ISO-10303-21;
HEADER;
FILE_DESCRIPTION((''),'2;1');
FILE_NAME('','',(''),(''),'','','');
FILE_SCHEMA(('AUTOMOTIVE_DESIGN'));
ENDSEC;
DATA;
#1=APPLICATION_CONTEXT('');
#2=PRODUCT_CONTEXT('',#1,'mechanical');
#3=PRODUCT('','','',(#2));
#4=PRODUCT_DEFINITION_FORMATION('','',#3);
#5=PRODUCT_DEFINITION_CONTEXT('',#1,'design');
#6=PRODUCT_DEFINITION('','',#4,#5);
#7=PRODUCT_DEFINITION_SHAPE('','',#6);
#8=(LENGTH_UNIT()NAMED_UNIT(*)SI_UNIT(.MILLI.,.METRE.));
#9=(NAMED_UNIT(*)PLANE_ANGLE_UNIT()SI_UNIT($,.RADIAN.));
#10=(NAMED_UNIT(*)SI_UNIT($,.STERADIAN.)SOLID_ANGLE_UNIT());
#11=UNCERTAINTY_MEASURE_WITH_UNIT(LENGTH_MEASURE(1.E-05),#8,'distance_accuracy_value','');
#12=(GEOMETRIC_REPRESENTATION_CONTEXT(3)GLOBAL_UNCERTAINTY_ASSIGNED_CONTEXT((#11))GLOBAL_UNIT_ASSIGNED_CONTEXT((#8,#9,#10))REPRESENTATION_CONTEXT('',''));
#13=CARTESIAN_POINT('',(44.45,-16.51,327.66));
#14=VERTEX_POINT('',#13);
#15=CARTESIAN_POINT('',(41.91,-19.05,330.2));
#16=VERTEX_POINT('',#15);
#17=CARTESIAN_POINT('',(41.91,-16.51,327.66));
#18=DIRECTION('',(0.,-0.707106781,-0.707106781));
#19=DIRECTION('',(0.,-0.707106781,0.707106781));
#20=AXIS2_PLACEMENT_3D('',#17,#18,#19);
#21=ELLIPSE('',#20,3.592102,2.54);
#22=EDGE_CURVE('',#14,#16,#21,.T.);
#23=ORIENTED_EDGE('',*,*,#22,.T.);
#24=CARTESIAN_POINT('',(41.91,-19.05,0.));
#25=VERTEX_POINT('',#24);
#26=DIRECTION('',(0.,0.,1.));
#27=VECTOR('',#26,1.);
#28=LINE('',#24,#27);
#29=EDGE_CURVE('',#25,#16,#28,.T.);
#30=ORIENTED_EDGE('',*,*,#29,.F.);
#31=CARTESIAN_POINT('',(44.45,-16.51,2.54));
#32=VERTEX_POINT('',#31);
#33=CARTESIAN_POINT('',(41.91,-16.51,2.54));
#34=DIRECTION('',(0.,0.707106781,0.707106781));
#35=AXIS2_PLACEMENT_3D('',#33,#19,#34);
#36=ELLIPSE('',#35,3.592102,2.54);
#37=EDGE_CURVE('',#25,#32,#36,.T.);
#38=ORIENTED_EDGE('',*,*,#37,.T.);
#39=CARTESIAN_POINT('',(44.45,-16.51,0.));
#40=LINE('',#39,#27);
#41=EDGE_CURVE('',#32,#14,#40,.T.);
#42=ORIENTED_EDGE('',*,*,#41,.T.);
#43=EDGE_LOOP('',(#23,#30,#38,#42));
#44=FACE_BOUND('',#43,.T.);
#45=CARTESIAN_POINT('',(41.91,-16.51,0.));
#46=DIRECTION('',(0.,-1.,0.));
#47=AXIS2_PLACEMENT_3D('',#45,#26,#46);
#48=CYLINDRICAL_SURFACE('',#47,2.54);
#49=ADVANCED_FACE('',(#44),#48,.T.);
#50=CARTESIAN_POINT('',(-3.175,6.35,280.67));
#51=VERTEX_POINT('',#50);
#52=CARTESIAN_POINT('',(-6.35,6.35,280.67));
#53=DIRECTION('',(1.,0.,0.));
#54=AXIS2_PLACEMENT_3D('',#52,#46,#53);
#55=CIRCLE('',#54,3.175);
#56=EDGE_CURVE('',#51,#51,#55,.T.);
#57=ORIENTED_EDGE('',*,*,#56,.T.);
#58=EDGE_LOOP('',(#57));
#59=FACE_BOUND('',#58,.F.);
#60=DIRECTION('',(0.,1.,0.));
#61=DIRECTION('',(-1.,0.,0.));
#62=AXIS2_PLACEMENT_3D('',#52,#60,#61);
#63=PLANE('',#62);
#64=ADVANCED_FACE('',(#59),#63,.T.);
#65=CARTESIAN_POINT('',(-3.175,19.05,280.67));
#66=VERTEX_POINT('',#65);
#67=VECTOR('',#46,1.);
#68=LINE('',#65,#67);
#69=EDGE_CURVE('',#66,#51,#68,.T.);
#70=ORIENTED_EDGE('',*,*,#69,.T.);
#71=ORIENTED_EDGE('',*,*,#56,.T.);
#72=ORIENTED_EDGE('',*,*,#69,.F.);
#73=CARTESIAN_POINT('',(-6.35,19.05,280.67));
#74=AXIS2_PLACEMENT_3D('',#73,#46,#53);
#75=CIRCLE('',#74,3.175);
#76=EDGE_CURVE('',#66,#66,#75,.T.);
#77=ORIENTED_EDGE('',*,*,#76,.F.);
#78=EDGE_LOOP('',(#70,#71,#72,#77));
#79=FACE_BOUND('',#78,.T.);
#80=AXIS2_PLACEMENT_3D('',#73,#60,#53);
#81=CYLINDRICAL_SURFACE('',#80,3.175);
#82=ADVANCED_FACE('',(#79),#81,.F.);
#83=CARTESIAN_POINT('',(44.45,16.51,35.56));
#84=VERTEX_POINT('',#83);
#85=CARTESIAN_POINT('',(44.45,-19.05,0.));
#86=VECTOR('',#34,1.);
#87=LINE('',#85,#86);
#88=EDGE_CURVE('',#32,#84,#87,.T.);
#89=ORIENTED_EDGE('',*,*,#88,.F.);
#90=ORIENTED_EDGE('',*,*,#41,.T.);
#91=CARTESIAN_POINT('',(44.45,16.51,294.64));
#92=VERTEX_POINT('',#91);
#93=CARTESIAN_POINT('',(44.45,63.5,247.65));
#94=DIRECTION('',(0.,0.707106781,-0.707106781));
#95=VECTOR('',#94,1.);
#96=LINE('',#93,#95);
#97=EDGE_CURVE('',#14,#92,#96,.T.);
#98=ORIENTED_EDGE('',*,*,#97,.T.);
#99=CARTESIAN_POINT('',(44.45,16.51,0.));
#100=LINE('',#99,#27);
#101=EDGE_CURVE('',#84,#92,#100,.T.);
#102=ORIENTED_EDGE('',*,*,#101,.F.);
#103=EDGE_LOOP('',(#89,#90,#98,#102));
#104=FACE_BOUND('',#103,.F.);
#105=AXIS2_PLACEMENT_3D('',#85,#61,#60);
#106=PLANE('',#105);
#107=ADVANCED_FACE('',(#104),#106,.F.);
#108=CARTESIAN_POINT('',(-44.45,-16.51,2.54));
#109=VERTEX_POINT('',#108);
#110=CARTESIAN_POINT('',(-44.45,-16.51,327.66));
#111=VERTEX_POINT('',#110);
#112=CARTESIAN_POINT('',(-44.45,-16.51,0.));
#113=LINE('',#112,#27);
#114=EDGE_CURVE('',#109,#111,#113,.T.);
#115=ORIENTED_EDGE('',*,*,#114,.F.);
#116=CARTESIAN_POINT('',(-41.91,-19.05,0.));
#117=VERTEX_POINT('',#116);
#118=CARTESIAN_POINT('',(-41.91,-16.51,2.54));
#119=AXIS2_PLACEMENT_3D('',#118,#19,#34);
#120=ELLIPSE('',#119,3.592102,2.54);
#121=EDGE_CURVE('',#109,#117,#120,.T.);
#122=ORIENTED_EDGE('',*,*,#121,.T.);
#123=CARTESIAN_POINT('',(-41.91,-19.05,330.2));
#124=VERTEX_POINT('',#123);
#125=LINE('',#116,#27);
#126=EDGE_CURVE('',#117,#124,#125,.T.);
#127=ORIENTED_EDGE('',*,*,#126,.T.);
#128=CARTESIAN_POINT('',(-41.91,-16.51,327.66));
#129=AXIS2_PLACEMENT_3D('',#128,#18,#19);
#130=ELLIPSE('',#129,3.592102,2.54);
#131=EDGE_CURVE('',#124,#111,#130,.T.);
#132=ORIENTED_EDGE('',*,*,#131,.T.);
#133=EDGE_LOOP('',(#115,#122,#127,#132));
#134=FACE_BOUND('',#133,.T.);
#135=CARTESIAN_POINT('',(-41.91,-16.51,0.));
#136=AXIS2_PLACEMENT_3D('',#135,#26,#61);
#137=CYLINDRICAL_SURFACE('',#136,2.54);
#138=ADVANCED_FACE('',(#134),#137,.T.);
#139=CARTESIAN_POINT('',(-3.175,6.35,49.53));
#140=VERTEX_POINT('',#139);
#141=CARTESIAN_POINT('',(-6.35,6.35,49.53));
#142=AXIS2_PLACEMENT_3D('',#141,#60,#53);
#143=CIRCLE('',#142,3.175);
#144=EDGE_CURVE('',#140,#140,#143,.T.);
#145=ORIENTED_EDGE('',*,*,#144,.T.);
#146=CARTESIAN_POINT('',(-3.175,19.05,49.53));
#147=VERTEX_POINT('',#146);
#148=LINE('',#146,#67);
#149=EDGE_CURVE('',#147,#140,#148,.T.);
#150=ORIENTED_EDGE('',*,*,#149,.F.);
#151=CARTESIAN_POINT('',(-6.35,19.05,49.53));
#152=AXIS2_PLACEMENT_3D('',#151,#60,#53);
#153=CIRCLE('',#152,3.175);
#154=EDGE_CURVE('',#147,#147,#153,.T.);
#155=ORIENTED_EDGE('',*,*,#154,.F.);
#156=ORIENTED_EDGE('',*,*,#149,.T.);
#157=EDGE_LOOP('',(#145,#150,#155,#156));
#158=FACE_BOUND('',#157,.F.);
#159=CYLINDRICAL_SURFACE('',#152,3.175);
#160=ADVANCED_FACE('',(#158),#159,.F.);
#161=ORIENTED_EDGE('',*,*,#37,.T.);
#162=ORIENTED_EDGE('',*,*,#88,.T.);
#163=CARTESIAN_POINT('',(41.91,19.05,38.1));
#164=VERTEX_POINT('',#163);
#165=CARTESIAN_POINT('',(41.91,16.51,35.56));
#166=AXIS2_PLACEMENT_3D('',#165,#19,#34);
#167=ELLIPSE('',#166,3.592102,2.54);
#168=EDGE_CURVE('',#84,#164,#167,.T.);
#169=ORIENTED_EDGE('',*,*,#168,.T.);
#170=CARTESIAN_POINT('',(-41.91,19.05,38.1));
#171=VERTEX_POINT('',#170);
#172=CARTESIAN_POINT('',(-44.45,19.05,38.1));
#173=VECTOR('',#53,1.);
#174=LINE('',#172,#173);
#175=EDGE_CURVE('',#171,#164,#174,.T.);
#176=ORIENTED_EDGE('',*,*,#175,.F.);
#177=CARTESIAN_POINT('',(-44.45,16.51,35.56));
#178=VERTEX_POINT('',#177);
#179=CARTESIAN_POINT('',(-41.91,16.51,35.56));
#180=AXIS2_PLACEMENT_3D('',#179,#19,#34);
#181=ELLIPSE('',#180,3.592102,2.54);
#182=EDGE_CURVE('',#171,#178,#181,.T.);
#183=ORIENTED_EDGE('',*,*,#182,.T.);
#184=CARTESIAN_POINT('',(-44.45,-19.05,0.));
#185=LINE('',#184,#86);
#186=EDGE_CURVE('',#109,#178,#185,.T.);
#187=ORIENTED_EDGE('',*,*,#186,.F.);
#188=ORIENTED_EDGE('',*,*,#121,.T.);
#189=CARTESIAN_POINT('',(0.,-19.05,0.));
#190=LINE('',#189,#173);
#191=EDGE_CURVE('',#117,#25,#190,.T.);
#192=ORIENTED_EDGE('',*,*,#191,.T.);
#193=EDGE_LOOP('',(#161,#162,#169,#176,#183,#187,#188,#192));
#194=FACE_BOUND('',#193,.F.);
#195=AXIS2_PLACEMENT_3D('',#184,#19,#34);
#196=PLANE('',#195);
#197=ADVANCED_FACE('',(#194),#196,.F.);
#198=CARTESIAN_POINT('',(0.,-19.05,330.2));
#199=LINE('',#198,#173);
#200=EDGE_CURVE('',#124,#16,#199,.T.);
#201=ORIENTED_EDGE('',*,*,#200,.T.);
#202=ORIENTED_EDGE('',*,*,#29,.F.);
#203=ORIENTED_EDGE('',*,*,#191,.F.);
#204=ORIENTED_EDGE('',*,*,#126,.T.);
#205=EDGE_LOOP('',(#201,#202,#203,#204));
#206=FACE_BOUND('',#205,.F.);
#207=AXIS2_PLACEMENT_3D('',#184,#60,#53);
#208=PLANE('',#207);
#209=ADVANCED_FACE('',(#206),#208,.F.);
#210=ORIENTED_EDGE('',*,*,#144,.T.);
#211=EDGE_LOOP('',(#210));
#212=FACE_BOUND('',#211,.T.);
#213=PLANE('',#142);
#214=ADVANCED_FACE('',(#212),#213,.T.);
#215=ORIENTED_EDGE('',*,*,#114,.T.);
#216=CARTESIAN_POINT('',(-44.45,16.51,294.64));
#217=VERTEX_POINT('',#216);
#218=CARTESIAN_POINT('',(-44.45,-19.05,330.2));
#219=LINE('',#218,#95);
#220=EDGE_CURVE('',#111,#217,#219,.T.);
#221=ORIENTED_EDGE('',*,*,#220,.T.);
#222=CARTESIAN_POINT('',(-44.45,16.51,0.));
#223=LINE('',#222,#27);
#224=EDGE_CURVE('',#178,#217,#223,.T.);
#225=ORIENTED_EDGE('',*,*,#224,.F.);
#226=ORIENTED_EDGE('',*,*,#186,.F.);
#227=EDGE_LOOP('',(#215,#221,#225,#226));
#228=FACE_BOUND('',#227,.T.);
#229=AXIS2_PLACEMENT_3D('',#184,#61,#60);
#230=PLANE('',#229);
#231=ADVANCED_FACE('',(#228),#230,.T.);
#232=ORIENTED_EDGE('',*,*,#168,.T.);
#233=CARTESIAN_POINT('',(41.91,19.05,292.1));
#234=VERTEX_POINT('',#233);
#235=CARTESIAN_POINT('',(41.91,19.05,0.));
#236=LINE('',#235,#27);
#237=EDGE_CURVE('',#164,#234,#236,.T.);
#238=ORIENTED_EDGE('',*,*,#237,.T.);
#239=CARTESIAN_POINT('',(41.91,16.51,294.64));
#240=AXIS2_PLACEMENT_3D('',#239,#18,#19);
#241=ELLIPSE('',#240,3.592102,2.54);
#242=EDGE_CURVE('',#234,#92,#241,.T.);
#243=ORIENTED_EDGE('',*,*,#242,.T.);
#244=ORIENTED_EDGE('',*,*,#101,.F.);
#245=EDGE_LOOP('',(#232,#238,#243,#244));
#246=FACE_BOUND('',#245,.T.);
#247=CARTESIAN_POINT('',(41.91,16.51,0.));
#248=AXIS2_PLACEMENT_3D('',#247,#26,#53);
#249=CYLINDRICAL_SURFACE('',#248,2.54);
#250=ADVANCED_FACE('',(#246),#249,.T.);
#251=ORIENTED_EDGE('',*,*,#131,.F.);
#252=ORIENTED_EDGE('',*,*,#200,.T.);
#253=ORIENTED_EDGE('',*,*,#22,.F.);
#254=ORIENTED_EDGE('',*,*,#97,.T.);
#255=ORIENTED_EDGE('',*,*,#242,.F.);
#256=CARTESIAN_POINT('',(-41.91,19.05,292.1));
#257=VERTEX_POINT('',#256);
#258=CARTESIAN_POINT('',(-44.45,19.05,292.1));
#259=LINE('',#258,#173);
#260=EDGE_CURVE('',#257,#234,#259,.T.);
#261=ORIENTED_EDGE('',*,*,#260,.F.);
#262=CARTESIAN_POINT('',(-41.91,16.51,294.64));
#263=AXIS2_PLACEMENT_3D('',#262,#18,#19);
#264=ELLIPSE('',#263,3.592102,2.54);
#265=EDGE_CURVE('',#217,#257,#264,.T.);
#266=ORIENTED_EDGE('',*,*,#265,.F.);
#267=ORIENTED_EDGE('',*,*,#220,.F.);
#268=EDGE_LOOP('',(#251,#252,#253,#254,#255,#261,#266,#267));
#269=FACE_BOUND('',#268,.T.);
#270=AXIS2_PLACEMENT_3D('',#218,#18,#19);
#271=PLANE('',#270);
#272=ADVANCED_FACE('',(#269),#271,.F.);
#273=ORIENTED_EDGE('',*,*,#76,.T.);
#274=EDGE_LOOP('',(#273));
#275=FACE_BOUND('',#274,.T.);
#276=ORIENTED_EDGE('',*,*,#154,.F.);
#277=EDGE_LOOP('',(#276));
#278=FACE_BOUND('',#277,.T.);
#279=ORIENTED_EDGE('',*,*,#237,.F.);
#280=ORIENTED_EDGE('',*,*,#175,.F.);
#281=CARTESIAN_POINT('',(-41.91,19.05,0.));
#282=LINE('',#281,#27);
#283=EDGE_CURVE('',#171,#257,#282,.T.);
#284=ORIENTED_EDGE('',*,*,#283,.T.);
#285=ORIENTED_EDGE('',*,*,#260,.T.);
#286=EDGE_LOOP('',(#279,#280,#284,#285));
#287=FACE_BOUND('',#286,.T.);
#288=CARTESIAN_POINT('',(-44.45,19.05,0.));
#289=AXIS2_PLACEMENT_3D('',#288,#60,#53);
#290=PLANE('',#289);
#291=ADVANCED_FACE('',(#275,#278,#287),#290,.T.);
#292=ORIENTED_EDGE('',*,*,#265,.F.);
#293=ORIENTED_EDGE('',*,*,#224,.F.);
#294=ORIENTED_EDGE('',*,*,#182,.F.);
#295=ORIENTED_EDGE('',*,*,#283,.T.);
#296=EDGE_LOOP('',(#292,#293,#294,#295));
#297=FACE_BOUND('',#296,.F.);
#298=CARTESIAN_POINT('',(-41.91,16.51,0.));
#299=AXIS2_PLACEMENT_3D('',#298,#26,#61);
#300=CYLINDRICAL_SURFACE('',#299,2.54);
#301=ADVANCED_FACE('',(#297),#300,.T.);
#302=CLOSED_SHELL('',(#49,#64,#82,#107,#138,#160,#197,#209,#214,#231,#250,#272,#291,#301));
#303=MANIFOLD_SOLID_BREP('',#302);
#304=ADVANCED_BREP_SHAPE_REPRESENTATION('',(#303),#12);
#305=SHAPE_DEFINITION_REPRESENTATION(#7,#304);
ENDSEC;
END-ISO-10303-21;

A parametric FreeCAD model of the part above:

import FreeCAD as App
import Part
import Sketcher
from FreeCAD import Vector
Q = App.Units.Quantity


def edges_at(feature, points):
    """Names of the edges that pass closest to the given points."""
    edges = feature.Shape.Edges
    near = lambda p: min(range(len(edges)), key=lambda i: edges[i].distToShape(Part.Vertex(*p))[0])
    return sorted({f"Edge{near(p) + 1}" for p in points})


def add_polygon(sketch, points):
    """Adds a closed chain of lines whose ends are joined by coincident constraints."""
    first, n = sketch.GeometryCount, len(points)
    for a, b in zip(points, points[1:] + points[:1]):
        sketch.addGeometry(Part.LineSegment(App.Vector(*a, 0), App.Vector(*b, 0)), False)
    for i in range(n):
        sketch.addConstraint(Sketcher.Constraint("Coincident", first + i, 2, first + (i + 1) % n, 1))

doc = App.newDocument("Part")
body = doc.addObject("PartDesign::Body", "Body")

sketch1 = doc.addObject("Sketcher::SketchObject", "Sketch")
body.addObject(sketch1)
sketch1.AttachmentSupport = (doc.XY_Plane, [""])
sketch1.MapMode = "FlatFace"
add_polygon(sketch1, [(-44, 19), (-44, -19), (44, -19), (44, 19)])
sketch1.addConstraint([
    Sketcher.Constraint("Vertical", 0),
    Sketcher.Constraint("Horizontal", 1),
    Sketcher.Constraint("Vertical", 2),
    Sketcher.Constraint("Horizontal", 3),
    Sketcher.Constraint("Symmetric", 0, 2, 2, 2, -1, 1),
    Sketcher.Constraint("DistanceX", 1, 1, 1, 2, Q("3.5 in")),
    Sketcher.Constraint("DistanceY", 0, 2, 0, 1, Q("1.5 in")),
])
pad1 = doc.addObject("PartDesign::Pad", "Pad")
body.addObject(pad1)
pad1.Profile = sketch1
pad1.Length = Q("13 in")
doc.recompute()

fillet = doc.addObject("PartDesign::Fillet", "Fillet")
body.addObject(fillet)
fillet.Base = (pad1, edges_at(pad1, [
    (44.45, -19.05, 165.1),
    (-44.45, -19.05, 165.1),
    (-44.45, 19.05, 165.1),
    (44.45, 19.05, 165.1),
]))
fillet.Radius = Q("0.1 in")

sketch2 = doc.addObject("Sketcher::SketchObject", "Sketch001")
body.addObject(sketch2)
sketch2.AttachmentSupport = (doc.YZ_Plane, [""])
sketch2.MapMode = "FlatFace"
sketch2.AttachmentOffset = App.Placement(Vector(0, 0, -1.75 * 25.4), App.Rotation())
add_polygon(sketch2, [(19, 0), (-19, 0), (19, 38)])
sketch2.addConstraint([
    Sketcher.Constraint("Horizontal", 0),
    Sketcher.Constraint("Vertical", 2),
    Sketcher.Constraint("Symmetric", 0, 2, 2, 2, -1, 1),
    Sketcher.Constraint("Equal", 0, 2),
    Sketcher.Constraint("DistanceX", 0, 2, 0, 1, Q("1.5 in")),
])
pocket1 = doc.addObject("PartDesign::Pocket", "Pocket")
body.addObject(pocket1)
pocket1.Profile = sketch2
pocket1.Length = Q("16 in")
pocket1.Reversed = True
doc.recompute()

datumplane = doc.addObject("PartDesign::Plane", "DatumPlane")
body.addObject(datumplane)
datumplane.AttachmentSupport = (doc.XY_Plane, [""])
datumplane.MapMode = "FlatFace"
datumplane.AttachmentOffset = App.Placement(Vector(0, 0, 6.5 * 25.4), App.Rotation())
mirrored = doc.addObject("PartDesign::Mirrored", "Mirrored")
body.addObject(mirrored)
mirrored.Originals = [pocket1]
mirrored.MirrorPlane = (datumplane, [""])
body.Tip = mirrored

sketch3 = doc.addObject("Sketcher::SketchObject", "Sketch002")
body.addObject(sketch3)
sketch3.AttachmentSupport = (doc.XZ_Plane, [""])
sketch3.MapMode = "FlatFace"
sketch3.AttachmentOffset = App.Placement(Vector(0, 0, -0.75 * 25.4), App.Rotation())
sketch3.addGeometry(Part.Circle(Vector(-6.3, 49.5, 0), Vector(0, 0, 1), 3.2), False)
sketch3.addConstraint([
    Sketcher.Constraint("Diameter", 0, Q("0.25 in")),
    Sketcher.Constraint("DistanceX", 0, 3, -1, 1, Q("0.25 in")),
    Sketcher.Constraint("DistanceY", -1, 1, 0, 3, Q("1.95 in")),
])
pocket2 = doc.addObject("PartDesign::Pocket", "Pocket001")
body.addObject(pocket2)
pocket2.Profile = sketch3
pocket2.Length = Q("0.5 in")
pocket2.Reversed = True
doc.recompute()

datumplane2 = doc.addObject("PartDesign::Plane", "DatumPlane001")
body.addObject(datumplane2)
datumplane2.AttachmentSupport = (doc.XY_Plane, [""])
datumplane2.MapMode = "FlatFace"
datumplane2.AttachmentOffset = App.Placement(Vector(0, 0, 6.5 * 25.4), App.Rotation())
mirrored2 = doc.addObject("PartDesign::Mirrored", "Mirrored001")
body.addObject(mirrored2)
mirrored2.Originals = [pocket2]
mirrored2.MirrorPlane = (datumplane2, [""])
body.Tip = mirrored2

doc.recompute()
